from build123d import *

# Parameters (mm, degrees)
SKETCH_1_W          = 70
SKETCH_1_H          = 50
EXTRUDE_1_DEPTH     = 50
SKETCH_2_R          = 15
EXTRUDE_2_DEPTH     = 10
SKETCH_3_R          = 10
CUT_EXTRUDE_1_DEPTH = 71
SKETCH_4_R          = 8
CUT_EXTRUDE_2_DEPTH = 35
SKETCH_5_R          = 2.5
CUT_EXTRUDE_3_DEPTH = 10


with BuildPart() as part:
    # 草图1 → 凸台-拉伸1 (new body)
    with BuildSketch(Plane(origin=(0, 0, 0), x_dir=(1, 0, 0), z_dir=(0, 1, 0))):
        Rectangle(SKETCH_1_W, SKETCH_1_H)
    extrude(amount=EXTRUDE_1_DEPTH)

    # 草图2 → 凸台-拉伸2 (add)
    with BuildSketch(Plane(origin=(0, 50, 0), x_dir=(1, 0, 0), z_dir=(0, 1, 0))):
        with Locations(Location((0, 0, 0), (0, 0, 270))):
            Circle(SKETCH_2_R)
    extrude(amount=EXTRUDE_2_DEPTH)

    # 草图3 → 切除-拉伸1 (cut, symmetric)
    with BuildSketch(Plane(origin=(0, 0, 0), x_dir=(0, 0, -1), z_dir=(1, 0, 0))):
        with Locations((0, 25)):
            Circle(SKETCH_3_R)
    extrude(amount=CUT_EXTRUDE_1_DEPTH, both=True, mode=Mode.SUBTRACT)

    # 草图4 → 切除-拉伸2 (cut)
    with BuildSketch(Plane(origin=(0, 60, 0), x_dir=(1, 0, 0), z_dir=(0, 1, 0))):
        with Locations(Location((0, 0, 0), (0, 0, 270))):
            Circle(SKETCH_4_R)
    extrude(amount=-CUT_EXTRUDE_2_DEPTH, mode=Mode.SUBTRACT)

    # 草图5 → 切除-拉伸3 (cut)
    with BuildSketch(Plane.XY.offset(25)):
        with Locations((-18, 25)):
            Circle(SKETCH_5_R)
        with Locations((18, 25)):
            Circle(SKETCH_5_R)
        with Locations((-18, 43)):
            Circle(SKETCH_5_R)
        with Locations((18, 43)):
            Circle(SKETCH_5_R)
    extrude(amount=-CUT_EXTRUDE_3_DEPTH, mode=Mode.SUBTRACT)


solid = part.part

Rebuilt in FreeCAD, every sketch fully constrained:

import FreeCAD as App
import Part
import Sketcher
from FreeCAD import Vector


def add_polygon(sketch, points):
    """Adds a closed chain of lines whose ends are joined by coincident constraints."""
    first, n = sketch.GeometryCount, len(points)
    for a, b in zip(points, points[1:] + points[:1]):
        sketch.addGeometry(Part.LineSegment(App.Vector(*a, 0), App.Vector(*b, 0)), False)
    for i in range(n):
        sketch.addConstraint(Sketcher.Constraint("Coincident", first + i, 2, first + (i + 1) % n, 1))

doc = App.newDocument("Part")
body = doc.addObject("PartDesign::Body", "Body")

# Sketch on XZ plane
sketch1 = body.newObject("Sketcher::SketchObject", "Sketch")
sketch1.AttachmentSupport = (doc.getObject("XZ_Plane"), [""])
sketch1.MapMode = "FlatFace"
add_polygon(sketch1, [(-35, -25), (-35, 25), (35, 25), (35, -25)])  # lines 0-3
sketch1.addConstraint([
    Sketcher.Constraint("Vertical", 0),
    Sketcher.Constraint("Horizontal", 1),
    Sketcher.Constraint("Vertical", 2),
    Sketcher.Constraint("Horizontal", 3),
    Sketcher.Constraint("Symmetric", 0, 2, 2, 2, -1, 1),
    Sketcher.Constraint("DistanceX", 1, 1, 1, 2, 70.0),
    Sketcher.Constraint("DistanceY", 0, 1, 0, 2, 50.0),
])
pad1 = body.newObject("PartDesign::Pad", "Pad")
pad1.Profile = sketch1
pad1.Length = 50
pad1.Reversed = True

# Sketch on XZ plane
sketch2 = body.newObject("Sketcher::SketchObject", "Sketch001")
sketch2.AttachmentSupport = (doc.getObject("XZ_Plane"), [""])
sketch2.MapMode = "FlatFace"
sketch2.AttachmentOffset = App.Placement(Vector(0, 0, -50), App.Rotation())
sketch2.addGeometry(Part.Circle(Vector(0, 0, 0), Vector(0, 0, 1), 15), False)
sketch2.addConstraint([
    Sketcher.Constraint("Coincident", 0, 3, -1, 1),
    Sketcher.Constraint("Diameter", 0, 30.0),
])
pad2 = body.newObject("PartDesign::Pad", "Pad001")
pad2.Profile = sketch2
pad2.Length = 10
pad2.Reversed = True

# Sketch on YZ plane
sketch3 = body.newObject("Sketcher::SketchObject", "Sketch002")
sketch3.AttachmentSupport = (doc.getObject("YZ_Plane"), [""])
sketch3.MapMode = "FlatFace"
sketch3.addGeometry(Part.Circle(Vector(25, 0, 0), Vector(0, 0, 1), 10), False)
sketch3.addConstraint([
    Sketcher.Constraint("PointOnObject", 0, 3, -1),
    Sketcher.Constraint("Diameter", 0, 20.0),
    Sketcher.Constraint("DistanceX", -1, 1, 0, 3, 25.0),
])
pocket1 = body.newObject("PartDesign::Pocket", "Pocket")
pocket1.Profile = sketch3
pocket1.Length = 142
pocket1.Midplane = True

# Sketch on XZ plane
sketch4 = body.newObject("Sketcher::SketchObject", "Sketch003")
sketch4.AttachmentSupport = (doc.getObject("XZ_Plane"), [""])
sketch4.MapMode = "FlatFace"
sketch4.AttachmentOffset = App.Placement(Vector(0, 0, -60), App.Rotation())
sketch4.addGeometry(Part.Circle(Vector(0, 0, 0), Vector(0, 0, 1), 8), False)
sketch4.addConstraint([
    Sketcher.Constraint("Coincident", 0, 3, -1, 1),
    Sketcher.Constraint("Diameter", 0, 16.0),
])
pocket2 = body.newObject("PartDesign::Pocket", "Pocket001")
pocket2.Profile = sketch4
pocket2.Length = 35
pocket2.Reversed = True

# Sketch on XY plane
sketch5 = body.newObject("Sketcher::SketchObject", "Sketch004")
sketch5.AttachmentSupport = (doc.getObject("XY_Plane"), [""])
sketch5.MapMode = "FlatFace"
sketch5.AttachmentOffset = App.Placement(Vector(0, 0, 25), App.Rotation())
sketch5.addGeometry([
    Part.Circle(Vector(-18, 25, 0), Vector(0, 0, 1), 2.5),
    Part.Circle(Vector(18, 25, 0), Vector(0, 0, 1), 2.5),
    Part.Circle(Vector(-18, 43, 0), Vector(0, 0, 1), 2.5),
    Part.Circle(Vector(18, 43, 0), Vector(0, 0, 1), 2.5),
], False)
sketch5.addConstraint([
    Sketcher.Constraint("Equal", 0, 1),
    Sketcher.Constraint("Equal", 1, 2),
    Sketcher.Constraint("Equal", 2, 3),
    Sketcher.Constraint("Symmetric", 0, 3, 1, 3, -2),
    Sketcher.Constraint("Symmetric", 2, 3, 3, 3, -2),
    Sketcher.Constraint("Vertical", 0, 3, 2, 3),
    Sketcher.Constraint("Diameter", 0, 5.0),
    Sketcher.Constraint("DistanceX", 0, 3, -1, 1, 18.0),
    Sketcher.Constraint("DistanceY", -1, 1, 0, 3, 25.0),
    Sketcher.Constraint("DistanceY", -1, 1, 2, 3, 43.0),
])
pocket3 = body.newObject("PartDesign::Pocket", "Pocket002")
pocket3.Profile = sketch5
pocket3.Length = 10

doc.recompute()
